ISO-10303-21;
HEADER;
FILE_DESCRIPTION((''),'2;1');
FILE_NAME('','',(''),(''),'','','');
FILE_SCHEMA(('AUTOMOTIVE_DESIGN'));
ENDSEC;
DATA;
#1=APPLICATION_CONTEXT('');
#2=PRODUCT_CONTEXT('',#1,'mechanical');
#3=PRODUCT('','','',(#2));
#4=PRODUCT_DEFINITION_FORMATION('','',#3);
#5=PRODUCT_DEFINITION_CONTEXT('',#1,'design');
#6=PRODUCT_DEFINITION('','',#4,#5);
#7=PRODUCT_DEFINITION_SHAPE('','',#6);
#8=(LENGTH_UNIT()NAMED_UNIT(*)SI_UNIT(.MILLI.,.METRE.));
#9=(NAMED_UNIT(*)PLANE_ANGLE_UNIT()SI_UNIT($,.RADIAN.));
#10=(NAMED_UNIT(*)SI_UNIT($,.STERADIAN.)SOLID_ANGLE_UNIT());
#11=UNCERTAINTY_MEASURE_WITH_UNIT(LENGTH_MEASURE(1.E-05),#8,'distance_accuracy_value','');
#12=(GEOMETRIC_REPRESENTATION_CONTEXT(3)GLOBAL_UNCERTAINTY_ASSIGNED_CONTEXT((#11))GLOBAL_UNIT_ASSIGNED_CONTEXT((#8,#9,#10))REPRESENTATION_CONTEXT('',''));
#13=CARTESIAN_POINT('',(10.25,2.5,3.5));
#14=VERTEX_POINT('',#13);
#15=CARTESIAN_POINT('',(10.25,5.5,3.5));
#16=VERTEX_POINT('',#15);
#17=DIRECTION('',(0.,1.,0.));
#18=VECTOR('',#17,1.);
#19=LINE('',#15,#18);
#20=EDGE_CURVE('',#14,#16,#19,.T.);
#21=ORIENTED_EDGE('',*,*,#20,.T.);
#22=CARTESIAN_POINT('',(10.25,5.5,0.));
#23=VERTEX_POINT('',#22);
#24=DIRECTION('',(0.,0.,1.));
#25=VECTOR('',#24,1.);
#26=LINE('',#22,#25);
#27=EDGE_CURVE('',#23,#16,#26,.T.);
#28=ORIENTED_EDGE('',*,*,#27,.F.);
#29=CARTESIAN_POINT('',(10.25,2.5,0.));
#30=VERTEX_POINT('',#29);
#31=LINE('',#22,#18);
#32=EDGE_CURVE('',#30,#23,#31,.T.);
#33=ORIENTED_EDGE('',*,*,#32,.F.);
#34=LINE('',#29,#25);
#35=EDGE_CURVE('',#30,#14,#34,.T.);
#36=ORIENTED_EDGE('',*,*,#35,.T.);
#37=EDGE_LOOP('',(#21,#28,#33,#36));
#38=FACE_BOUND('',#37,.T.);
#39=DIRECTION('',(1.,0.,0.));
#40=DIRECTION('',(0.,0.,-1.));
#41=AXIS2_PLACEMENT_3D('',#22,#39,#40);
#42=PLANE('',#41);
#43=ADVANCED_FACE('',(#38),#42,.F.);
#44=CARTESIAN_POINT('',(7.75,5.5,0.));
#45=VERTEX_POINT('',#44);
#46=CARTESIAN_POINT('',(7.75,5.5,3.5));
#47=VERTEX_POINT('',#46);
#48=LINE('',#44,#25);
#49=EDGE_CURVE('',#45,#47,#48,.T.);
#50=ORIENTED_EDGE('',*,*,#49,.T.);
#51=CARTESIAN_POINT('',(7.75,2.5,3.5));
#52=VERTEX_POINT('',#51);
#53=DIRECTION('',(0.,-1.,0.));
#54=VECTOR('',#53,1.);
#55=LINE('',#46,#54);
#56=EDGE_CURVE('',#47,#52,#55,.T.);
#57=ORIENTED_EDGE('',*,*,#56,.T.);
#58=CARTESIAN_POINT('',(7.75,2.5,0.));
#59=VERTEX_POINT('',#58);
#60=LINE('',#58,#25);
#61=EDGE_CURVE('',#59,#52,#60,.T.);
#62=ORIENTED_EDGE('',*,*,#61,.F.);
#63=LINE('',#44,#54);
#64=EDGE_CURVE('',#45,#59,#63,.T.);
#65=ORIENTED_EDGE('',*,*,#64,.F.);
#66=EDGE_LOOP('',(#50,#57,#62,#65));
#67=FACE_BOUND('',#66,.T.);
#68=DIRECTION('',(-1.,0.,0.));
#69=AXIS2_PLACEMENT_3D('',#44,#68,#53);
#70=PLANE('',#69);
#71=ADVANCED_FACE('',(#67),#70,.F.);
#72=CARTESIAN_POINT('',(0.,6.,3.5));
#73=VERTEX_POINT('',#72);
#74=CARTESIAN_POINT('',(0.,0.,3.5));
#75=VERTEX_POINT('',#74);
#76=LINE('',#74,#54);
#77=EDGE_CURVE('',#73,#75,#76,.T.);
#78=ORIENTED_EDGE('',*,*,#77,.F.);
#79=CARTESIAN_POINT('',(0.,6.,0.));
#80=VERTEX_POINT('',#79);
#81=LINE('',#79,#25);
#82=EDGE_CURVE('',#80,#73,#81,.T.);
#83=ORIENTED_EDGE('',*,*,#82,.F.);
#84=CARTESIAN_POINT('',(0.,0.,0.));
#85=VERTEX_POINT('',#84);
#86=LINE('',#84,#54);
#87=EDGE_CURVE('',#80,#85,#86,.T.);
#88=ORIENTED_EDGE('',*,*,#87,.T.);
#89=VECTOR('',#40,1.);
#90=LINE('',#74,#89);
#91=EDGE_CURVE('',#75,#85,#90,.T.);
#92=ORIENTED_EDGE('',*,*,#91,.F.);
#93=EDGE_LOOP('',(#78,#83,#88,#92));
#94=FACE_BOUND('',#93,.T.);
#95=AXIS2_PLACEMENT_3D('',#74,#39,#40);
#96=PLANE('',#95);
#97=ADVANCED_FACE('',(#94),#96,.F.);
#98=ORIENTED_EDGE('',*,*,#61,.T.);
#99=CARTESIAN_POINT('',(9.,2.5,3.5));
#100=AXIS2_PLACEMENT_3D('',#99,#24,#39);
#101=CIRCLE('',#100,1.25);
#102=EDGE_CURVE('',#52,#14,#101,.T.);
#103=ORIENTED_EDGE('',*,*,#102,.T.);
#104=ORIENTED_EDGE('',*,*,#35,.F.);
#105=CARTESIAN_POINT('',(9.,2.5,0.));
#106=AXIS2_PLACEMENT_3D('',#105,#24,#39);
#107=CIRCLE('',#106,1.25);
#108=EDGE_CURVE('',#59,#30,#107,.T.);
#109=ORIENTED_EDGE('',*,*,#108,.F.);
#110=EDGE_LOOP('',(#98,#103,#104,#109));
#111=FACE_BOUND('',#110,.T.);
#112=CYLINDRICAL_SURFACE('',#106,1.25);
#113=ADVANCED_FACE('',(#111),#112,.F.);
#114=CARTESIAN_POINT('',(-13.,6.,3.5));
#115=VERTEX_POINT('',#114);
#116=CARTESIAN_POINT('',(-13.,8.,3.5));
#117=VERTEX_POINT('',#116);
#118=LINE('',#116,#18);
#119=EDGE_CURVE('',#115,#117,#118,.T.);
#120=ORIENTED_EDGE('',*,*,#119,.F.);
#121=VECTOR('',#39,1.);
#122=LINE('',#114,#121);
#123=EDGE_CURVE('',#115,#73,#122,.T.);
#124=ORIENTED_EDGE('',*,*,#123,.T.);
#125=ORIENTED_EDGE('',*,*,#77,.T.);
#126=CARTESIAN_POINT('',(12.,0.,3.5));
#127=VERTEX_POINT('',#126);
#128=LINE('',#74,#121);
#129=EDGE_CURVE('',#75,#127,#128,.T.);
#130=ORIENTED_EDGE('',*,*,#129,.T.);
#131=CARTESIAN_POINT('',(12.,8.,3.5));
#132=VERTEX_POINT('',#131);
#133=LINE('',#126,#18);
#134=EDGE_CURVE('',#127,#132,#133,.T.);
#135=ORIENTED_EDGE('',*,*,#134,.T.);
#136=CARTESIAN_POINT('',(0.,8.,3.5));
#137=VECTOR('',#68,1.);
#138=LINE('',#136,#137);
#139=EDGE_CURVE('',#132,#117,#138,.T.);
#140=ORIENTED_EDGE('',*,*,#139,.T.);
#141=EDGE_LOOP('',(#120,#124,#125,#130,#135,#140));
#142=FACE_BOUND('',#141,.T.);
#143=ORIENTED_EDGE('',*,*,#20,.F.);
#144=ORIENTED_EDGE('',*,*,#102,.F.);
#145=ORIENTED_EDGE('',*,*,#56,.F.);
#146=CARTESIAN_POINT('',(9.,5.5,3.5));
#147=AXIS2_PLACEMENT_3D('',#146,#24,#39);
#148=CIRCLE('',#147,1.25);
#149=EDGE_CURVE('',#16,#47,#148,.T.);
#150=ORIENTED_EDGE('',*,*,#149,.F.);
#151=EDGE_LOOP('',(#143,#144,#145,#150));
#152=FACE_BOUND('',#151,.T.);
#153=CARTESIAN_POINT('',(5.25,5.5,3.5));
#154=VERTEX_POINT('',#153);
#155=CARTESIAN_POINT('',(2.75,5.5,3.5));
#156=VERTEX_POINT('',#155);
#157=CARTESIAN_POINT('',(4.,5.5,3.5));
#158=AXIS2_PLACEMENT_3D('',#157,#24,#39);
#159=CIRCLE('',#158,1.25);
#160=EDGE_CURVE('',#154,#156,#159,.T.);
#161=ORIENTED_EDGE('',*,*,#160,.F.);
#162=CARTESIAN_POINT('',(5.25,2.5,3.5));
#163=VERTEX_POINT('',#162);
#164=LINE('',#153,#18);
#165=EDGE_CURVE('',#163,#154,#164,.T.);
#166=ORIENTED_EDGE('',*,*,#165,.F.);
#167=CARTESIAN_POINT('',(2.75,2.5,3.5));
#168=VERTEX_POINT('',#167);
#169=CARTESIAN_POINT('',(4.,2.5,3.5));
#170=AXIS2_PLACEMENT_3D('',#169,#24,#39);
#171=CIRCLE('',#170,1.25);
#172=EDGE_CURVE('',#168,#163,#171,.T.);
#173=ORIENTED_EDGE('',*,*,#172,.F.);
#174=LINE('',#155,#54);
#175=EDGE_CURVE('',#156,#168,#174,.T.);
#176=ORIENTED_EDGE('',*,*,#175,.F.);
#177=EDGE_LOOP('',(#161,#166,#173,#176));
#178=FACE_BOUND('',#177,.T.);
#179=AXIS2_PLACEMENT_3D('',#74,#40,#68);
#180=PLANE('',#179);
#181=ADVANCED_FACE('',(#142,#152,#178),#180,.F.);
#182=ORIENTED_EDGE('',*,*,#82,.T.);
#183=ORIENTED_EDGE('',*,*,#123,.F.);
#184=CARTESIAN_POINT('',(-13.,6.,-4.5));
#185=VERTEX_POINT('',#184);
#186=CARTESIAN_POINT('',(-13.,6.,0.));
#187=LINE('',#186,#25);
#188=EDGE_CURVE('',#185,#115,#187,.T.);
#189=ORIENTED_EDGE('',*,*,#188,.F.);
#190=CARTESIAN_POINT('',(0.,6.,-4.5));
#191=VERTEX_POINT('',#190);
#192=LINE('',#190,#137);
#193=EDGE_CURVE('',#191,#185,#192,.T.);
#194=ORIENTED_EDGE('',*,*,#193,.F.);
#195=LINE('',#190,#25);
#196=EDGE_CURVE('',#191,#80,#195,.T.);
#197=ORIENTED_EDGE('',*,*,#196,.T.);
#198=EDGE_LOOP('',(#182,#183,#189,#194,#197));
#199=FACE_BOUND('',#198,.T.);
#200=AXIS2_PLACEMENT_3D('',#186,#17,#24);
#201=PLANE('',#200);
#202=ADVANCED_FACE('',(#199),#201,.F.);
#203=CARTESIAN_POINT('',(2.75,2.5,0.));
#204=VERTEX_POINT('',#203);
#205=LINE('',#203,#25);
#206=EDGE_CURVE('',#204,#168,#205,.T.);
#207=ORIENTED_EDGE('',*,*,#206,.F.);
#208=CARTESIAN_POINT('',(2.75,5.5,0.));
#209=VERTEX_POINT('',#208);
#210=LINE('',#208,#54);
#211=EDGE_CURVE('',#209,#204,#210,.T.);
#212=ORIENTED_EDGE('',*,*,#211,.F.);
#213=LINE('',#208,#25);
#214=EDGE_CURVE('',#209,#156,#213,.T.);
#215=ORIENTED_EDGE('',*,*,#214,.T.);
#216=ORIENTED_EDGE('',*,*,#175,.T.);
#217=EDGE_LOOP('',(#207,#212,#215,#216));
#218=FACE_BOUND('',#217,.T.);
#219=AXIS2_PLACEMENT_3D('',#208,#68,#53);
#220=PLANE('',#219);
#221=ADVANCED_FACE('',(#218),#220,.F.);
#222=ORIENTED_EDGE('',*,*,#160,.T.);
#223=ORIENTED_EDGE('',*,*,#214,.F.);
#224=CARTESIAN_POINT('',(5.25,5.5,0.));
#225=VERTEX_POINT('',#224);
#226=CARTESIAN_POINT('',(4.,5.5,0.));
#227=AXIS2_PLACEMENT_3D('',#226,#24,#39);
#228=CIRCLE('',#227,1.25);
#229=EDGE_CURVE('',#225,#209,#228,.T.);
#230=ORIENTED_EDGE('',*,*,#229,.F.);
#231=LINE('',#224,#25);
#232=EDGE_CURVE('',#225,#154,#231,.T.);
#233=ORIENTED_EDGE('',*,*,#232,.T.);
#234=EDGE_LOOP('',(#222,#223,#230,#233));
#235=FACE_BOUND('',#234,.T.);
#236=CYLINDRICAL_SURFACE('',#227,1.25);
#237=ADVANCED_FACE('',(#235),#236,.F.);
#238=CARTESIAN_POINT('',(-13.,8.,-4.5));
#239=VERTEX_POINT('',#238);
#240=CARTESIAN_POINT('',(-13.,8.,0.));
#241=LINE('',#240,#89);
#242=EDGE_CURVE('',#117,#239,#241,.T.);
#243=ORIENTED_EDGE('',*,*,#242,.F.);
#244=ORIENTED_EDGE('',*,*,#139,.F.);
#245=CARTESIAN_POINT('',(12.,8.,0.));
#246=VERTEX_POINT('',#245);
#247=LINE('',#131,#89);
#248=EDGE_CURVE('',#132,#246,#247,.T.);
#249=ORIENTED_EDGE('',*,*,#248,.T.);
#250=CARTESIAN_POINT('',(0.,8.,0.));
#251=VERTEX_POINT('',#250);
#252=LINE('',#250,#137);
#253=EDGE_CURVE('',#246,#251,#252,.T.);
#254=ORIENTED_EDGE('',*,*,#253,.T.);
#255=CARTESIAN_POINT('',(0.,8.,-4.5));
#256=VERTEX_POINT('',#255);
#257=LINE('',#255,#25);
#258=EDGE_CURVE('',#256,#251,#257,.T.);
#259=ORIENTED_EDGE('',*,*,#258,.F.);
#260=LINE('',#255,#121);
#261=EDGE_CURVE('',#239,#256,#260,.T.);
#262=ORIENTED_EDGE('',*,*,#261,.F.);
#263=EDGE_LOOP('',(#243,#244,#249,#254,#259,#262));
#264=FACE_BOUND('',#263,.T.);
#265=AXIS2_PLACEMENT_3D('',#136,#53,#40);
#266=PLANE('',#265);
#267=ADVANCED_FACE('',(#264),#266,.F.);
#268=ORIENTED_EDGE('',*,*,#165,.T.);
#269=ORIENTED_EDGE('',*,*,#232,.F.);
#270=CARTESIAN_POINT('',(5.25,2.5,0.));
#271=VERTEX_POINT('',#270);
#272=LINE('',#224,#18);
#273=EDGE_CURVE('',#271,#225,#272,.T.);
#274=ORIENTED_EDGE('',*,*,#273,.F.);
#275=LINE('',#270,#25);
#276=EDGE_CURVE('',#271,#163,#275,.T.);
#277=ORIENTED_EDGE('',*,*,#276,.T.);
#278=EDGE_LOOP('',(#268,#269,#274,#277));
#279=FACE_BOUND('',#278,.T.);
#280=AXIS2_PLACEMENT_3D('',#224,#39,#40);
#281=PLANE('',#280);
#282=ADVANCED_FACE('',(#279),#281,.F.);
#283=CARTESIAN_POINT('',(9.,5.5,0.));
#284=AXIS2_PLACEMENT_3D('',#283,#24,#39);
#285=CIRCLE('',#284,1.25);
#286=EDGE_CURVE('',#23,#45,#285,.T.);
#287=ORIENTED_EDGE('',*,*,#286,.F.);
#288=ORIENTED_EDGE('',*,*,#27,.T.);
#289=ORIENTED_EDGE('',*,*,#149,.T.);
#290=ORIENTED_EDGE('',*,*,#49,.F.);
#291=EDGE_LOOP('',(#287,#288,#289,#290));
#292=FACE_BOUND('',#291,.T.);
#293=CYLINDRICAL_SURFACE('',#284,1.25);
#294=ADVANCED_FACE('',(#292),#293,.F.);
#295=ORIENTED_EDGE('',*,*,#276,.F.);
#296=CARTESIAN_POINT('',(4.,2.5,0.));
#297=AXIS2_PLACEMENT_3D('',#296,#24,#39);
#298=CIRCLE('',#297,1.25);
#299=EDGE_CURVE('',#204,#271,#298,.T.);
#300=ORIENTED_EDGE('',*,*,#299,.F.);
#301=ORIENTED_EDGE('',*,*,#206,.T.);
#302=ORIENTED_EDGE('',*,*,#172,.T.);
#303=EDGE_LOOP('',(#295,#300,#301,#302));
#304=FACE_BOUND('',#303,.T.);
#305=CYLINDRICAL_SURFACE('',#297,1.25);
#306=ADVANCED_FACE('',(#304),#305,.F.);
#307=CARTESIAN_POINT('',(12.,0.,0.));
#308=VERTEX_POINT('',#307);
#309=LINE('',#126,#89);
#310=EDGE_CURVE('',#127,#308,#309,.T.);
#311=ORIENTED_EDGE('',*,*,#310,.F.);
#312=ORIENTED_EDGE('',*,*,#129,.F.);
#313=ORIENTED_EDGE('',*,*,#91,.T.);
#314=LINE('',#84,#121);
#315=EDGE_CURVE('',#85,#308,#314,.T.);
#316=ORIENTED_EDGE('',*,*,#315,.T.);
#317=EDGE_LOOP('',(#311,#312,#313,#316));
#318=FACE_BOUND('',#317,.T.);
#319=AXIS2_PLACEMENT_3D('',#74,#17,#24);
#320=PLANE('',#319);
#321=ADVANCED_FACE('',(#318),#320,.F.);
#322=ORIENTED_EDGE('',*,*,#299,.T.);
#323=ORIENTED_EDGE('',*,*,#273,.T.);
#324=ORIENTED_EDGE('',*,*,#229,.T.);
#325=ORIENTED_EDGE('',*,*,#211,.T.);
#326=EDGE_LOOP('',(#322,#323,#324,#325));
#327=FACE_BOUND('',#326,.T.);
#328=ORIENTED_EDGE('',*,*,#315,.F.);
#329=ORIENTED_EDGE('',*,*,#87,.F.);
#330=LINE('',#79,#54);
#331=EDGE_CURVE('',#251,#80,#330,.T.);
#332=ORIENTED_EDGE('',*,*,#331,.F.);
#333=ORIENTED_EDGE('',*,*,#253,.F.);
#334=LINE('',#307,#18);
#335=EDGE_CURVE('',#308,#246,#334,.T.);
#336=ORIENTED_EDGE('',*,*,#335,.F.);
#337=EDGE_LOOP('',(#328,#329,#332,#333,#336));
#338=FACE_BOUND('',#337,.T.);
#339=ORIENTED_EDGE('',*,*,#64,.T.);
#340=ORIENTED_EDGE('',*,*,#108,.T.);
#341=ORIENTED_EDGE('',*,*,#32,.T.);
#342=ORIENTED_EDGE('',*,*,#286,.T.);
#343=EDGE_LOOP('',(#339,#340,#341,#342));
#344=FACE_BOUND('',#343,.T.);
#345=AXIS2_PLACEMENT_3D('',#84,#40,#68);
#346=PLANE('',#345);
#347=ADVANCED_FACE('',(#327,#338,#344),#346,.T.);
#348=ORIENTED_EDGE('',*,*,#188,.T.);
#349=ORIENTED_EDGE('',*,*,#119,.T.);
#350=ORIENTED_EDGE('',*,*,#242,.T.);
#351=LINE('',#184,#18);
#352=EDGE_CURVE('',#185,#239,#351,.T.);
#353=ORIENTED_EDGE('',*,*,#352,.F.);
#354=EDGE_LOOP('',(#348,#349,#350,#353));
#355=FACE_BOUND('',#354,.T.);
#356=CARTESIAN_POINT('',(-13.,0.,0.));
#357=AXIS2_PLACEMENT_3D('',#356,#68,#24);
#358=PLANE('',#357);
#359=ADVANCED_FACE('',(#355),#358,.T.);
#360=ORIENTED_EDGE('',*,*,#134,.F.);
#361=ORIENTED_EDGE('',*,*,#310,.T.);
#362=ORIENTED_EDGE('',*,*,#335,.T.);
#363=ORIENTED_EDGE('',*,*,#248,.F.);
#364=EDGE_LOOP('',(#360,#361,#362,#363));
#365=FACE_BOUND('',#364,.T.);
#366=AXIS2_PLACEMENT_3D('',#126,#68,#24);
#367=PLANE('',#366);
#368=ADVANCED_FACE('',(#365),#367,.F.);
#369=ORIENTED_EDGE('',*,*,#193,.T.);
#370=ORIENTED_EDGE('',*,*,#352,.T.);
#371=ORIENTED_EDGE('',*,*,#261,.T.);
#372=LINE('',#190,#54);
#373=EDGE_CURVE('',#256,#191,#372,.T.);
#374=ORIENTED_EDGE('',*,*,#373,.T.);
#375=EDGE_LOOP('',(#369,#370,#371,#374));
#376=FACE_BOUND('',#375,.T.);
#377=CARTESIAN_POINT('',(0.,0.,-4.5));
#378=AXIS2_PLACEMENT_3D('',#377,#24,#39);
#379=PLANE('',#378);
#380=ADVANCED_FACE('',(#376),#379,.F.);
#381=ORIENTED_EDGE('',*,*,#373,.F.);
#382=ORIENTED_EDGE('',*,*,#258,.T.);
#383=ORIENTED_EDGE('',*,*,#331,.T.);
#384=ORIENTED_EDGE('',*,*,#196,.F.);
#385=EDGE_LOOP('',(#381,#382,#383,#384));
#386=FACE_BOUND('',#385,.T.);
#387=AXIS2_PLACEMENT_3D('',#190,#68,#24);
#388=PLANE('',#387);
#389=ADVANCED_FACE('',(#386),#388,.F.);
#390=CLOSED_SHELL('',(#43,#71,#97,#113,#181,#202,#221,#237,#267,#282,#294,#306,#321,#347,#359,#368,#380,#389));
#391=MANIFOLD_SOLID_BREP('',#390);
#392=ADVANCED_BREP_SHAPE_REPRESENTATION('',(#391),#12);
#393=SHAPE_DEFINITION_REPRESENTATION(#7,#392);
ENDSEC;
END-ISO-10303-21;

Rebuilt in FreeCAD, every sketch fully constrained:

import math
import FreeCAD as App
import Part
import Sketcher


def add_polygon(sketch, points):
    """Adds a closed chain of lines whose ends are joined by coincident constraints."""
    first, n = sketch.GeometryCount, len(points)
    for a, b in zip(points, points[1:] + points[:1]):
        sketch.addGeometry(Part.LineSegment(App.Vector(*a, 0), App.Vector(*b, 0)), False)
    for i in range(n):
        sketch.addConstraint(Sketcher.Constraint("Coincident", first + i, 2, first + (i + 1) % n, 1))

doc = App.newDocument("Part")
body = doc.addObject("PartDesign::Body", "Body")

# Sketch on XY plane
sketch1 = body.newObject("Sketcher::SketchObject", "Sketch")
sketch1.AttachmentSupport = (doc.getObject("XY_Plane"), [""])
sketch1.MapMode = "FlatFace"
add_polygon(sketch1, [(0, 8), (0, 0), (12, 0), (12, 8)])  # lines 0-3
sketch1.addConstraint(Sketcher.Constraint("Vertical", 0))
sketch1.addConstraint(Sketcher.Constraint("Horizontal", 1))
sketch1.addConstraint(Sketcher.Constraint("Vertical", 2))
sketch1.addConstraint(Sketcher.Constraint("Horizontal", 3))
sketch1.addConstraint(Sketcher.Constraint("Coincident", 0, 2, -1, 1))
sketch1.addConstraint(Sketcher.Constraint("DistanceX", 1, 1, 1, 2, 12.0))
sketch1.addConstraint(Sketcher.Constraint("DistanceY", 0, 2, 0, 1, 8.0))
pad1 = body.newObject("PartDesign::Pad", "Pad")
pad1.Profile = sketch1
pad1.Length = 3.5

# Sketch on XY plane
sketch2 = body.newObject("Sketcher::SketchObject", "Sketch001")
sketch2.AttachmentSupport = (doc.getObject("XY_Plane"), [""])
sketch2.MapMode = "FlatFace"
sketch2.AttachmentOffset = App.Placement(App.Vector(0, 0, 3.5), App.Rotation())
sketch2.addGeometry(Part.LineSegment(App.Vector(5.2, 2.5, 0), App.Vector(5.2, 5.5, 0)), False)
sketch2.addGeometry(Part.ArcOfCircle(Part.Circle(App.Vector(4, 5.5, 0), App.Vector(0, 0, 1), 1.2), math.radians(0), math.radians(180)), False)
sketch2.addGeometry(Part.LineSegment(App.Vector(2.8, 5.5, 0), App.Vector(2.8, 2.5, 0)), False)
sketch2.addGeometry(Part.ArcOfCircle(Part.Circle(App.Vector(4, 2.5, 0), App.Vector(0, 0, 1), 1.2), math.radians(180), math.radians(360)), False)
sketch2.addGeometry(Part.LineSegment(App.Vector(10.2, 2.5, 0), App.Vector(10.2, 5.5, 0)), False)
sketch2.addGeometry(Part.ArcOfCircle(Part.Circle(App.Vector(9, 5.5, 0), App.Vector(0, 0, 1), 1.2), math.radians(0), math.radians(180)), False)
sketch2.addGeometry(Part.LineSegment(App.Vector(7.8, 5.5, 0), App.Vector(7.8, 2.5, 0)), False)
sketch2.addGeometry(Part.ArcOfCircle(Part.Circle(App.Vector(9, 2.5, 0), App.Vector(0, 0, 1), 1.2), math.radians(180), math.radians(360)), False)
sketch2.addConstraint(Sketcher.Constraint("Tangent", 0, 2, 1, 1))
sketch2.addConstraint(Sketcher.Constraint("Tangent", 1, 2, 2, 1))
sketch2.addConstraint(Sketcher.Constraint("Tangent", 2, 2, 3, 1))
sketch2.addConstraint(Sketcher.Constraint("Tangent", 3, 2, 0, 1))
sketch2.addConstraint(Sketcher.Constraint("Tangent", 4, 2, 5, 1))
sketch2.addConstraint(Sketcher.Constraint("Tangent", 5, 2, 6, 1))
sketch2.addConstraint(Sketcher.Constraint("Tangent", 6, 2, 7, 1))
sketch2.addConstraint(Sketcher.Constraint("Tangent", 7, 2, 4, 1))
sketch2.addConstraint(Sketcher.Constraint("Vertical", 0))
sketch2.addConstraint(Sketcher.Constraint("Vertical", 2))
sketch2.addConstraint(Sketcher.Constraint("Vertical", 4))
sketch2.addConstraint(Sketcher.Constraint("Vertical", 6))
sketch2.addConstraint(Sketcher.Constraint("Equal", 3, 5))
sketch2.addConstraint(Sketcher.Constraint("Horizontal", 1, 3, 5, 3))
sketch2.addConstraint(Sketcher.Constraint("Horizontal", 3, 3, 7, 3))
sketch2.addConstraint(Sketcher.Constraint("DistanceY", 0, 1, 0, 2, 3.0))
sketch2.addConstraint(Sketcher.Constraint("Radius", 1, 1.25))
sketch2.addConstraint(Sketcher.Constraint("DistanceX", -1, 1, 1, 3, 4.0))
sketch2.addConstraint(Sketcher.Constraint("DistanceX", -1, 1, 5, 3, 9.0))
sketch2.addConstraint(Sketcher.Constraint("DistanceY", -1, 1, 1, 3, 5.5))
pocket1 = body.newObject("PartDesign::Pocket", "Pocket")
pocket1.Profile = sketch2
pocket1.Type = "ThroughAll"

# Sketch on YZ plane
sketch3 = body.newObject("Sketcher::SketchObject", "Sketch002")
sketch3.AttachmentSupport = (doc.getObject("YZ_Plane"), [""])
sketch3.MapMode = "FlatFace"
add_polygon(sketch3, [(8, 0), (6, 0), (6, 3.5), (8, 3.5)])  # lines 0-3
sketch3.addConstraint(Sketcher.Constraint("Horizontal", 0))
sketch3.addConstraint(Sketcher.Constraint("Vertical", 1))
sketch3.addConstraint(Sketcher.Constraint("Horizontal", 2))
sketch3.addConstraint(Sketcher.Constraint("Vertical", 3))
sketch3.addConstraint(Sketcher.Constraint("PointOnObject", 0, 2, -1))
sketch3.addConstraint(Sketcher.Constraint("DistanceX", 0, 2, 0, 1, 2.0))
sketch3.addConstraint(Sketcher.Constraint("DistanceY", 1, 1, 1, 2, 3.5))
sketch3.addConstraint(Sketcher.Constraint("DistanceX", -1, 1, 0, 2, 6.0))
pad2 = body.newObject("PartDesign::Pad", "Pad001")
pad2.Profile = sketch3
pad2.Length = 13
pad2.Reversed = True

# Sketch on XY plane
sketch4 = body.newObject("Sketcher::SketchObject", "Sketch003")
sketch4.AttachmentSupport = (doc.getObject("XY_Plane"), [""])
sketch4.MapMode = "FlatFace"
add_polygon(sketch4, [(0, 8), (0, 6), (-13, 6), (-13, 8)])  # lines 0-3
sketch4.addConstraint(Sketcher.Constraint("Vertical", 0))
sketch4.addConstraint(Sketcher.Constraint("Horizontal", 1))
sketch4.addConstraint(Sketcher.Constraint("Vertical", 2))
sketch4.addConstraint(Sketcher.Constraint("Horizontal", 3))
sketch4.addConstraint(Sketcher.Constraint("PointOnObject", 0, 2, -2))
sketch4.addConstraint(Sketcher.Constraint("DistanceX", 1, 2, 1, 1, 13.0))
sketch4.addConstraint(Sketcher.Constraint("DistanceY", 0, 2, 0, 1, 2.0))
sketch4.addConstraint(Sketcher.Constraint("DistanceY", -1, 1, 0, 2, 6.0))
pad3 = body.newObject("PartDesign::Pad", "Pad002")
pad3.Profile = sketch4
pad3.Length = 4.5
pad3.Reversed = True

doc.recompute()
